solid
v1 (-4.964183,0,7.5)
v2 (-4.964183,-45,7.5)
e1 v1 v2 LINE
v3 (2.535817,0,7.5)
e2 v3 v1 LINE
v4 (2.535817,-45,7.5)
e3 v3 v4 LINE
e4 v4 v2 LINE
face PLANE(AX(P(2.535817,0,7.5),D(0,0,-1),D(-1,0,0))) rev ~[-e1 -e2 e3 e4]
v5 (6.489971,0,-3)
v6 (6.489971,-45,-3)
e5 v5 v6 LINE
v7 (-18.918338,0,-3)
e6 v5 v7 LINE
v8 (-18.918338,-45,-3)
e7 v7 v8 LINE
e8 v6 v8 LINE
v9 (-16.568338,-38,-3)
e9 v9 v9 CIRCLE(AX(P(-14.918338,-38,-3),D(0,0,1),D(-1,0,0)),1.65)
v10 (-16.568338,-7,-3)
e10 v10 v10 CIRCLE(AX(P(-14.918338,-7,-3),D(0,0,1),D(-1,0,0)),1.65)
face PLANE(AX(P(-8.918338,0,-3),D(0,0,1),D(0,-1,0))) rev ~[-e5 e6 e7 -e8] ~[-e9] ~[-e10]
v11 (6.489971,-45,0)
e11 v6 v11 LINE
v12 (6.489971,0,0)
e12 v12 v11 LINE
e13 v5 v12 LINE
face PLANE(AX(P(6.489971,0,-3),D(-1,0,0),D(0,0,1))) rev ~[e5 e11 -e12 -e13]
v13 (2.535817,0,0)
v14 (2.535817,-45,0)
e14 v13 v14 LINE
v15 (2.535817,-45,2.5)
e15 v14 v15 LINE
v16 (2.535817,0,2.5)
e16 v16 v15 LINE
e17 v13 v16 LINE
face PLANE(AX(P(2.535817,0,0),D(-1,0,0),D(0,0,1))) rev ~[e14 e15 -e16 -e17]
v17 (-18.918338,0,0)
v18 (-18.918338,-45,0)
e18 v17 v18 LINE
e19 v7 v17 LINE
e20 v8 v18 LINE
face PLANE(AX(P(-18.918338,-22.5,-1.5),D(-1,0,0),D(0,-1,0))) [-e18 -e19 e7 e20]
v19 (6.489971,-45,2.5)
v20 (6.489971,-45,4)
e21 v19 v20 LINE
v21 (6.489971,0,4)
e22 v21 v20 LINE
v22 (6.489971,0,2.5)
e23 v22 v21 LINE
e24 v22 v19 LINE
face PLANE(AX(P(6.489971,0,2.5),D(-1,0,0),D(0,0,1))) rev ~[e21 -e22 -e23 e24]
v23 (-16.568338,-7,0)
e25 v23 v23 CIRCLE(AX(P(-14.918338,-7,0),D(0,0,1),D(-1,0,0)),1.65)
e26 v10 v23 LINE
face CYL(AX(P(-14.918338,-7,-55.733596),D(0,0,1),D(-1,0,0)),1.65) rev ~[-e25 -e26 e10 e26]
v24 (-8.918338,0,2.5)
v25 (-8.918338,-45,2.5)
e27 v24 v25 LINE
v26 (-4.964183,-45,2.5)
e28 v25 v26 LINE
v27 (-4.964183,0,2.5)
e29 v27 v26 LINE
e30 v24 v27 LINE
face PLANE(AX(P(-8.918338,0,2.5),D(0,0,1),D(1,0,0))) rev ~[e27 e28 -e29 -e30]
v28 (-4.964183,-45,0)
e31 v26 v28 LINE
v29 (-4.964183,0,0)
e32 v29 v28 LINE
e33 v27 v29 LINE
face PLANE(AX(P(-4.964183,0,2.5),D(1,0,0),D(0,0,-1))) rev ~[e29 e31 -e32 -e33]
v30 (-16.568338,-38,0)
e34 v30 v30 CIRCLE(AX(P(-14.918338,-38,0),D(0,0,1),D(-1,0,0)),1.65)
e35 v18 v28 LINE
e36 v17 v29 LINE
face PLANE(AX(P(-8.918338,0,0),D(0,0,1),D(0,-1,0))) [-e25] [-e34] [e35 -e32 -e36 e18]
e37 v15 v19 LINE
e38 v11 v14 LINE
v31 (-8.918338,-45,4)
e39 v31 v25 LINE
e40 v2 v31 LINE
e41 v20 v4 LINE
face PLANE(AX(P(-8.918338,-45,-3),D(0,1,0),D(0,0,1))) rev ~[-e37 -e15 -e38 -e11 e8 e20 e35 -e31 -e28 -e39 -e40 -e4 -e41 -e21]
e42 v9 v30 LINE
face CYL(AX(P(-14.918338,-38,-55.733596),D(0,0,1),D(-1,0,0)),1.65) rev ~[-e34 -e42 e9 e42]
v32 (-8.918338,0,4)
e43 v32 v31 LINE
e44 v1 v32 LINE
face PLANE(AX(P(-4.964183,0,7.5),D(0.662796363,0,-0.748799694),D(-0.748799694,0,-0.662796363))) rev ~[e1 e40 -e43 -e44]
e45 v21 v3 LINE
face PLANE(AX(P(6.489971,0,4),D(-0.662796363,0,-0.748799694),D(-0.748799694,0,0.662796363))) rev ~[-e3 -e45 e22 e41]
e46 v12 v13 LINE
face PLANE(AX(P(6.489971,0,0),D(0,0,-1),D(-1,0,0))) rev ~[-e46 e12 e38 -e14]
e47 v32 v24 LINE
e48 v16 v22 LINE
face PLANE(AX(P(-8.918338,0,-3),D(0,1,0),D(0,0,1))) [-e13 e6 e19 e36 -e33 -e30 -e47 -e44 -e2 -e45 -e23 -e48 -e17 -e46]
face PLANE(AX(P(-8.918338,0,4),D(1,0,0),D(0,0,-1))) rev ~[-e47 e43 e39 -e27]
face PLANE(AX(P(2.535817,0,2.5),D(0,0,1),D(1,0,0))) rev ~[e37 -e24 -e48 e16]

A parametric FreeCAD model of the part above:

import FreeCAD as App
import Part
import Sketcher
from FreeCAD import Vector
Q = App.Units.Quantity


def add_polygon(sketch, points):
    """Adds a closed chain of lines whose ends are joined by coincident constraints."""
    first, n = sketch.GeometryCount, len(points)
    for a, b in zip(points, points[1:] + points[:1]):
        sketch.addGeometry(Part.LineSegment(App.Vector(*a, 0), App.Vector(*b, 0)), False)
    for i in range(n):
        sketch.addConstraint(Sketcher.Constraint("Coincident", first + i, 2, first + (i + 1) % n, 1))

doc = App.newDocument("Part")
params = doc.addObject("Spreadsheet::Sheet", "Params")
for row, (alias, value) in enumerate([
    ("sketch1_height", "3 mm"),
    ("sketch1_width", "7.5 mm"),
    ("sketch1_height2", "2.5 mm"),
    ("sketch1_height3", "1.5 mm"),
    ("pad1_length", "45 mm"),
    ("sketch2_width", "45 mm"),
    ("sketch2_height", "3 mm"),
    ("pad2_length", "10 mm"),
    ("sketch3_diameter", "3.3 mm"),
    ("hole_diameter", "3.3 mm"),
], start=1):
    params.set(f"A{row}", alias)
    params.set(f"B{row}", "=" + value)
    params.setAlias(f"B{row}", alias)

body = doc.addObject("PartDesign::Body", "Body")

# Sketch on XZ plane
sketch1 = body.newObject("Sketcher::SketchObject", "Sketch")
sketch1.AttachmentSupport = (doc.getObject("XZ_Plane"), [""])
sketch1.MapMode = "FlatFace"
add_polygon(sketch1, [(-4.964183, 2.5), (-4.964183, 0), (-8.918338, 0), (-8.918338, -3), (6.489971, -3), (6.489971, 0), (2.535817, 0), (2.535817, 2.5), (6.489971, 2.5), (6.489971, 4), (2.535817, 7.5), (-4.964183, 7.5), (-8.918338, 4), (-8.918338, 2.5)])  # lines 0-13
sketch1.addConstraint([
    Sketcher.Constraint("Vertical", 0),
    Sketcher.Constraint("Horizontal", 1),
    Sketcher.Constraint("Vertical", 2),
    Sketcher.Constraint("Horizontal", 3),
    Sketcher.Constraint("Vertical", 4),
    Sketcher.Constraint("Horizontal", 5),
    Sketcher.Constraint("Vertical", 6),
    Sketcher.Constraint("Horizontal", 7),
    Sketcher.Constraint("Vertical", 8),
    Sketcher.Constraint("Horizontal", 10),
    Sketcher.Constraint("Vertical", 12),
    Sketcher.Constraint("Horizontal", 13),
    Sketcher.Constraint("PointOnObject", 0, 2, -1),
    Sketcher.Constraint("PointOnObject", 4, 2, -1),
    Sketcher.Constraint("Horizontal", 8, 2, 11, 2),
    Sketcher.Constraint("Horizontal", 7, 2, 12, 2),
    Sketcher.Constraint("Vertical", 4, 2, 7, 2),
    Sketcher.Constraint("Vertical", 6, 2, 9, 2),
    Sketcher.Constraint("Vertical", 0, 2, 10, 2),
    Sketcher.Constraint("Vertical", 2, 2, 11, 2),
    Sketcher.Constraint("Equal", 1, 5),
    Sketcher.Constraint("DistanceY", 2, 2, 2, 1, Q("3 mm")),
    Sketcher.Constraint("DistanceX", 10, 2, 10, 1, Q("7.5 mm")),
    Sketcher.Constraint("DistanceY", 0, 2, 0, 1, Q("2.5 mm")),
    Sketcher.Constraint("DistanceY", 8, 1, 8, 2, Q("1.5 mm")),
    Sketcher.Constraint("DistanceY", 6, 2, 9, 2, Q("5 mm")),
    Sketcher.Constraint("DistanceX", 3, 1, 3, 2, Q("15.408308 mm")),
    Sketcher.Constraint("DistanceX", -1, 1, 3, 2, Q("6.489971 mm")),
])
sketch1.setExpression("Constraints[35]", "Params.sketch1_height")
sketch1.setExpression("Constraints[36]", "Params.sketch1_width")
sketch1.setExpression("Constraints[37]", "Params.sketch1_height2")
sketch1.setExpression("Constraints[38]", "Params.sketch1_height3")
pad1 = body.newObject("PartDesign::Pad", "Pad")
pad1.Profile = sketch1
pad1.setExpression("Length", "Params.pad1_length")

# Sketch on YZ plane
sketch2 = body.newObject("Sketcher::SketchObject", "Sketch001")
sketch2.AttachmentSupport = (doc.getObject("YZ_Plane"), [""])
sketch2.MapMode = "FlatFace"
sketch2.AttachmentOffset = App.Placement(Vector(0, 0, -8.918338), App.Rotation())
add_polygon(sketch2, [(0, 0), (0, -3), (-45, -3), (-45, 0)])  # lines 0-3
sketch2.addConstraint([
    Sketcher.Constraint("Vertical", 0),
    Sketcher.Constraint("Horizontal", 1),
    Sketcher.Constraint("Vertical", 2),
    Sketcher.Constraint("Horizontal", 3),
    Sketcher.Constraint("Coincident", 3, 2, -1, 1),
    Sketcher.Constraint("DistanceX", 1, 2, 1, 1, Q("45 mm")),
    Sketcher.Constraint("DistanceY", 0, 2, 0, 1, Q("3 mm")),
])
sketch2.setExpression("Constraints[9]", "Params.sketch2_width")
sketch2.setExpression("Constraints[10]", "Params.sketch2_height")
pad2 = body.newObject("PartDesign::Pad", "Pad001")
pad2.Profile = sketch2
pad2.setExpression("Length", "Params.pad2_length")
pad2.Reversed = True

# Sketch on XY plane
sketch3 = body.newObject("Sketcher::SketchObject", "Sketch002")
sketch3.AttachmentSupport = (doc.getObject("XY_Plane"), [""])
sketch3.MapMode = "FlatFace"
sketch3.AttachmentOffset = App.Placement(Vector(0, 0, -3), App.Rotation())
sketch3.addGeometry([
    Part.Circle(Vector(-14.918338, -38, 0), Vector(0, 0, 1), 1.65),
    Part.Circle(Vector(-14.918338, -7, 0), Vector(0, 0, 1), 1.65),
], False)
sketch3.addConstraint([
    Sketcher.Constraint("Equal", 0, 1),
    Sketcher.Constraint("Vertical", 0, 3, 1, 3),
    Sketcher.Constraint("Diameter", 0, Q("3.3 mm")),
    Sketcher.Constraint("DistanceY", 0, 3, -1, 1, Q("38 mm")),
    Sketcher.Constraint("DistanceY", 1, 3, -1, 1, Q("7 mm")),
    Sketcher.Constraint("DistanceX", 0, 3, -1, 1, Q("14.918338 mm")),
])
sketch3.setExpression("Constraints[2]", "Params.sketch3_diameter")
doc.recompute()
hole = body.newObject("PartDesign::Hole", "Hole")
hole.Profile = sketch3
hole.ThreadType = "None"
hole.setExpression("Diameter", "Params.hole_diameter")
hole.DepthType = "ThroughAll"
hole.Reversed = True

doc.recompute()
